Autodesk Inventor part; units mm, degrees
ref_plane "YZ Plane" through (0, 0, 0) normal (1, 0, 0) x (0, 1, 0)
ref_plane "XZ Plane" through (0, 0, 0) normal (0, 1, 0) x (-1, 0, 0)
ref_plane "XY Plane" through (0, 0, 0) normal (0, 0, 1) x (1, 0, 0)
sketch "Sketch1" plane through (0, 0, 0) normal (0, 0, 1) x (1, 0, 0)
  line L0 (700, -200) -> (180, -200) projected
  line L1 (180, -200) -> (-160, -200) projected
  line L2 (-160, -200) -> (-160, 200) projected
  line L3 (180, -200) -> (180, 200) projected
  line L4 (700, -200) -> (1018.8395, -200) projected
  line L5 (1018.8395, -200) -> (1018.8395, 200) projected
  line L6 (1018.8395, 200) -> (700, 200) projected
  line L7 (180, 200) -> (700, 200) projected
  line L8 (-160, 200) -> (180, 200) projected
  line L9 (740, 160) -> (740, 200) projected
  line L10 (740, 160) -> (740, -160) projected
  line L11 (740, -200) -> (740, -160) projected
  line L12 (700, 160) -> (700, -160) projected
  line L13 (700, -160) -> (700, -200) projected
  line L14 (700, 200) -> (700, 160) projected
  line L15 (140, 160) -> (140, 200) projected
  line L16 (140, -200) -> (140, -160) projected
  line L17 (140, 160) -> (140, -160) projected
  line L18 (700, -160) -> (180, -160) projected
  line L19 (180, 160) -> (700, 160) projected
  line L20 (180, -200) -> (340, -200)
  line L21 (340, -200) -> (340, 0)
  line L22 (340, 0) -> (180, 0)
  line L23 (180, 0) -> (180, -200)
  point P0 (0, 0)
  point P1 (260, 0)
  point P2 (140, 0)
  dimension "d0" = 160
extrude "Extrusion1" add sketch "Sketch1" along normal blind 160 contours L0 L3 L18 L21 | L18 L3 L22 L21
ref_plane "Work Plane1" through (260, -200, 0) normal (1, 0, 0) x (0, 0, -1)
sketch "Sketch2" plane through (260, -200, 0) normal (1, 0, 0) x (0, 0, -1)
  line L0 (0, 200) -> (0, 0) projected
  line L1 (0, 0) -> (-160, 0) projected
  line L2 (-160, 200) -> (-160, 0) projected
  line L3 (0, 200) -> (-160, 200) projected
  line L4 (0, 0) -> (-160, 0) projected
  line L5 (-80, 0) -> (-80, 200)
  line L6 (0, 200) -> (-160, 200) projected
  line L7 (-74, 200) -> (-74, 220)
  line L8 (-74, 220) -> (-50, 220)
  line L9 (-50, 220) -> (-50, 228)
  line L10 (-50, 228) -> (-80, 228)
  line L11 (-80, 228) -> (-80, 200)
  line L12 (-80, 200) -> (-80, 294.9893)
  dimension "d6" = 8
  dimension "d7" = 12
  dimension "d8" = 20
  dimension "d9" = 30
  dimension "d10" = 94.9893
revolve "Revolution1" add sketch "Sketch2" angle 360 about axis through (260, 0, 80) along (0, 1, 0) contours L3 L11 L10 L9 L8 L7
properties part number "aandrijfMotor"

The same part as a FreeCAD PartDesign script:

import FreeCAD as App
import Part
import Sketcher


def add_polygon(sketch, points):
    """Adds a closed chain of lines whose ends are joined by coincident constraints."""
    first, n = sketch.GeometryCount, len(points)
    for a, b in zip(points, points[1:] + points[:1]):
        sketch.addGeometry(Part.LineSegment(App.Vector(*a, 0), App.Vector(*b, 0)), False)
    for i in range(n):
        sketch.addConstraint(Sketcher.Constraint("Coincident", first + i, 2, first + (i + 1) % n, 1))

doc = App.newDocument("Part")
body = doc.addObject("PartDesign::Body", "Body")

sketch1 = body.newObject("Sketcher::SketchObject", "Sketch")
sketch1.AttachmentSupport = (doc.getObject("XY_Plane"), [""])
sketch1.MapMode = "FlatFace"
add_polygon(sketch1, [(180, -200), (340, -200), (340, 0), (180, 0)])
sketch1.addConstraint([
    Sketcher.Constraint("Horizontal", 0),
    Sketcher.Constraint("Vertical", 1),
    Sketcher.Constraint("Horizontal", 2),
    Sketcher.Constraint("Vertical", 3),
    Sketcher.Constraint("PointOnObject", 1, 2, -1),
    Sketcher.Constraint("DistanceX", 0, 1, 0, 2, 160.0),
    Sketcher.Constraint("DistanceY", 1, 1, 1, 2, 200.0),
    Sketcher.Constraint("DistanceX", -1, 1, 0, 2, 340.0),
])
pad1 = body.newObject("PartDesign::Pad", "Pad")
pad1.Profile = sketch1
pad1.Length = 160

sketch2 = body.newObject("Sketcher::SketchObject", "Sketch001")
sketch2.AttachmentSupport = (doc.getObject("YZ_Plane"), [""])
sketch2.MapMode = "FlatFace"
sketch2.AttachmentOffset = App.Placement(App.Vector(0, 0, 260), App.Rotation())
add_polygon(sketch2, [(0, 80), (0, 74), (20, 74), (20, 50), (28, 50), (28, 80)])
sketch2.addGeometry(Part.LineSegment(App.Vector(0, 80, 0), App.Vector(28, 80, 0)), True)
sketch2.addConstraint([
    Sketcher.Constraint("Vertical", 0),
    Sketcher.Constraint("Horizontal", 1),
    Sketcher.Constraint("Vertical", 2),
    Sketcher.Constraint("Horizontal", 3),
    Sketcher.Constraint("Vertical", 4),
    Sketcher.Constraint("Horizontal", 5),
    Sketcher.Constraint("Horizontal", 6),
    Sketcher.Constraint("Coincident", 6, 1, 5, 2),
    Sketcher.Constraint("PointOnObject", 0, 2, -2),
    Sketcher.Constraint("Vertical", 3, 2, 6, 2),
    Sketcher.Constraint("DistanceX", 1, 1, 1, 2, 20.0),
    Sketcher.Constraint("DistanceX", 3, 1, 3, 2, 8.0),
    Sketcher.Constraint("DistanceY", 4, 1, 4, 2, 30.0),
    Sketcher.Constraint("DistanceY", 0, 2, 0, 1, 6.0),
    Sketcher.Constraint("DistanceY", -1, 1, 0, 2, 74.0),
])
revolution = body.newObject("PartDesign::Revolution", "Revolution")
revolution.Profile = sketch2
revolution.ReferenceAxis = (sketch2, ["Axis0"])
revolution.Angle = 360

doc.recompute()
